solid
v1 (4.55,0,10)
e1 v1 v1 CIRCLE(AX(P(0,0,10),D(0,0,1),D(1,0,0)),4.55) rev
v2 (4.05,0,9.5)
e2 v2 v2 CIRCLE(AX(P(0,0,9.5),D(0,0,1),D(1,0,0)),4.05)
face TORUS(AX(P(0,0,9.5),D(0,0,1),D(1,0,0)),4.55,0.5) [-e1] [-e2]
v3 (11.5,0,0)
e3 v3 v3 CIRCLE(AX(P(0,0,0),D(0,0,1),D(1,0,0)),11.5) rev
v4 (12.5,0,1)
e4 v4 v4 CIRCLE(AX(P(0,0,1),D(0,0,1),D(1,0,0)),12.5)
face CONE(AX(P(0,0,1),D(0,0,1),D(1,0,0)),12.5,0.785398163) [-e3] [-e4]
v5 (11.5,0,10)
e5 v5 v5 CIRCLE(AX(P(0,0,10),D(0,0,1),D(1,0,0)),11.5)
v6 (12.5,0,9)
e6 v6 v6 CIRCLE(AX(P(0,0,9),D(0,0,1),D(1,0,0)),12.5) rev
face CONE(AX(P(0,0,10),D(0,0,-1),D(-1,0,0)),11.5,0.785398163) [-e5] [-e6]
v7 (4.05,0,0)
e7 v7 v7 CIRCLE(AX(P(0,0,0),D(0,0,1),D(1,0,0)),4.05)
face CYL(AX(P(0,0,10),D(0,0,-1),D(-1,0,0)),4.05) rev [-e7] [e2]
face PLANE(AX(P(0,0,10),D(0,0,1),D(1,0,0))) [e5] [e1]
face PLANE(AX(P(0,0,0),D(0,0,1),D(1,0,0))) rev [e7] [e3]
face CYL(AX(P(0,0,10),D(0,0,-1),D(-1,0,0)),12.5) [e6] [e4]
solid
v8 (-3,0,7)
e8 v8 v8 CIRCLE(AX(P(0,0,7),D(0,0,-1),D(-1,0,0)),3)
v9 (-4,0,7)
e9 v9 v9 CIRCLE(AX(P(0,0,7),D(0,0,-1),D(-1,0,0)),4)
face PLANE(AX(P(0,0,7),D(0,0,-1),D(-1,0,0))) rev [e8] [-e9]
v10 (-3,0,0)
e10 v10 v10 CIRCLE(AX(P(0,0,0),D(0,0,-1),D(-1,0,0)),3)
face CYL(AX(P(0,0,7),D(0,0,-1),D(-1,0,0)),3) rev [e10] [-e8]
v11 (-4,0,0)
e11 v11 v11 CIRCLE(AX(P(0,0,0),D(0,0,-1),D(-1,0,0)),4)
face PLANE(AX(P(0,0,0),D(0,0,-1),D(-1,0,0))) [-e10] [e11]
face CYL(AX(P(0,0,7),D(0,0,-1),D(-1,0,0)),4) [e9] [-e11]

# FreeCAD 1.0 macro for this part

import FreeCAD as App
import Part
import Sketcher
from FreeCAD import Vector
Q = App.Units.Quantity


def edges_at(feature, points):
    """Names of the edges that pass closest to the given points."""
    edges = feature.Shape.Edges
    near = lambda p: min(range(len(edges)), key=lambda i: edges[i].distToShape(Part.Vertex(*p))[0])
    return sorted({f"Edge{near(p) + 1}" for p in points})

doc = App.newDocument("Part")
body = doc.addObject("PartDesign::Body", "Body")

sketch1 = body.newObject("Sketcher::SketchObject", "Sketch")
sketch1.AttachmentSupport = (doc.getObject("XY_Plane"), [""])
sketch1.MapMode = "FlatFace"
sketch1.addGeometry([
    Part.Circle(Vector(0, 0, 0), Vector(0, 0, 1), 12.5),
    Part.Circle(Vector(0, 0, 0), Vector(0, 0, 1), 4),
], False)
sketch1.addConstraint([
    Sketcher.Constraint("Coincident", 0, 3, -1, 1),
    Sketcher.Constraint("Coincident", 1, 3, -1, 1),
    Sketcher.Constraint("Diameter", 0, Q("25 mm")),
    Sketcher.Constraint("Diameter", 1, Q("8.1 mm")),
])
pad1 = body.newObject("PartDesign::Pad", "Pad")
pad1.Profile = sketch1
pad1.Length = 10
doc.recompute()

chamfer = body.newObject("PartDesign::Chamfer", "Chamfer")
chamfer.Base = (pad1, edges_at(pad1, [(-12.5, 0, 0), (-12.5, 0, 10)]))
chamfer.Size = 1
doc.recompute()

fillet = body.newObject("PartDesign::Fillet", "Fillet")
fillet.Base = (chamfer, edges_at(chamfer, [(-4.05, 0, 10)]))
fillet.Radius = 0.5
body2 = doc.addObject("PartDesign::Body", "Body001")

sketch2 = body2.newObject("Sketcher::SketchObject", "Sketch001")
sketch2.AttachmentSupport = (doc.getObject("XY_Plane001"), [""])
sketch2.MapMode = "FlatFace"
sketch2.addGeometry([
    Part.Circle(Vector(0, 0, 0), Vector(0, 0, 1), 4),
    Part.Circle(Vector(0, 0, 0), Vector(0, 0, 1), 3),
], False)
sketch2.addConstraint([
    Sketcher.Constraint("Coincident", 0, 3, -1, 1),
    Sketcher.Constraint("Coincident", 1, 3, -1, 1),
    Sketcher.Constraint("Diameter", 0, Q("8 mm")),
    Sketcher.Constraint("Diameter", 1, Q("6 mm")),
])
pad2 = body2.newObject("PartDesign::Pad", "Pad001")
pad2.Profile = sketch2
pad2.Length = 7

doc.recompute()
